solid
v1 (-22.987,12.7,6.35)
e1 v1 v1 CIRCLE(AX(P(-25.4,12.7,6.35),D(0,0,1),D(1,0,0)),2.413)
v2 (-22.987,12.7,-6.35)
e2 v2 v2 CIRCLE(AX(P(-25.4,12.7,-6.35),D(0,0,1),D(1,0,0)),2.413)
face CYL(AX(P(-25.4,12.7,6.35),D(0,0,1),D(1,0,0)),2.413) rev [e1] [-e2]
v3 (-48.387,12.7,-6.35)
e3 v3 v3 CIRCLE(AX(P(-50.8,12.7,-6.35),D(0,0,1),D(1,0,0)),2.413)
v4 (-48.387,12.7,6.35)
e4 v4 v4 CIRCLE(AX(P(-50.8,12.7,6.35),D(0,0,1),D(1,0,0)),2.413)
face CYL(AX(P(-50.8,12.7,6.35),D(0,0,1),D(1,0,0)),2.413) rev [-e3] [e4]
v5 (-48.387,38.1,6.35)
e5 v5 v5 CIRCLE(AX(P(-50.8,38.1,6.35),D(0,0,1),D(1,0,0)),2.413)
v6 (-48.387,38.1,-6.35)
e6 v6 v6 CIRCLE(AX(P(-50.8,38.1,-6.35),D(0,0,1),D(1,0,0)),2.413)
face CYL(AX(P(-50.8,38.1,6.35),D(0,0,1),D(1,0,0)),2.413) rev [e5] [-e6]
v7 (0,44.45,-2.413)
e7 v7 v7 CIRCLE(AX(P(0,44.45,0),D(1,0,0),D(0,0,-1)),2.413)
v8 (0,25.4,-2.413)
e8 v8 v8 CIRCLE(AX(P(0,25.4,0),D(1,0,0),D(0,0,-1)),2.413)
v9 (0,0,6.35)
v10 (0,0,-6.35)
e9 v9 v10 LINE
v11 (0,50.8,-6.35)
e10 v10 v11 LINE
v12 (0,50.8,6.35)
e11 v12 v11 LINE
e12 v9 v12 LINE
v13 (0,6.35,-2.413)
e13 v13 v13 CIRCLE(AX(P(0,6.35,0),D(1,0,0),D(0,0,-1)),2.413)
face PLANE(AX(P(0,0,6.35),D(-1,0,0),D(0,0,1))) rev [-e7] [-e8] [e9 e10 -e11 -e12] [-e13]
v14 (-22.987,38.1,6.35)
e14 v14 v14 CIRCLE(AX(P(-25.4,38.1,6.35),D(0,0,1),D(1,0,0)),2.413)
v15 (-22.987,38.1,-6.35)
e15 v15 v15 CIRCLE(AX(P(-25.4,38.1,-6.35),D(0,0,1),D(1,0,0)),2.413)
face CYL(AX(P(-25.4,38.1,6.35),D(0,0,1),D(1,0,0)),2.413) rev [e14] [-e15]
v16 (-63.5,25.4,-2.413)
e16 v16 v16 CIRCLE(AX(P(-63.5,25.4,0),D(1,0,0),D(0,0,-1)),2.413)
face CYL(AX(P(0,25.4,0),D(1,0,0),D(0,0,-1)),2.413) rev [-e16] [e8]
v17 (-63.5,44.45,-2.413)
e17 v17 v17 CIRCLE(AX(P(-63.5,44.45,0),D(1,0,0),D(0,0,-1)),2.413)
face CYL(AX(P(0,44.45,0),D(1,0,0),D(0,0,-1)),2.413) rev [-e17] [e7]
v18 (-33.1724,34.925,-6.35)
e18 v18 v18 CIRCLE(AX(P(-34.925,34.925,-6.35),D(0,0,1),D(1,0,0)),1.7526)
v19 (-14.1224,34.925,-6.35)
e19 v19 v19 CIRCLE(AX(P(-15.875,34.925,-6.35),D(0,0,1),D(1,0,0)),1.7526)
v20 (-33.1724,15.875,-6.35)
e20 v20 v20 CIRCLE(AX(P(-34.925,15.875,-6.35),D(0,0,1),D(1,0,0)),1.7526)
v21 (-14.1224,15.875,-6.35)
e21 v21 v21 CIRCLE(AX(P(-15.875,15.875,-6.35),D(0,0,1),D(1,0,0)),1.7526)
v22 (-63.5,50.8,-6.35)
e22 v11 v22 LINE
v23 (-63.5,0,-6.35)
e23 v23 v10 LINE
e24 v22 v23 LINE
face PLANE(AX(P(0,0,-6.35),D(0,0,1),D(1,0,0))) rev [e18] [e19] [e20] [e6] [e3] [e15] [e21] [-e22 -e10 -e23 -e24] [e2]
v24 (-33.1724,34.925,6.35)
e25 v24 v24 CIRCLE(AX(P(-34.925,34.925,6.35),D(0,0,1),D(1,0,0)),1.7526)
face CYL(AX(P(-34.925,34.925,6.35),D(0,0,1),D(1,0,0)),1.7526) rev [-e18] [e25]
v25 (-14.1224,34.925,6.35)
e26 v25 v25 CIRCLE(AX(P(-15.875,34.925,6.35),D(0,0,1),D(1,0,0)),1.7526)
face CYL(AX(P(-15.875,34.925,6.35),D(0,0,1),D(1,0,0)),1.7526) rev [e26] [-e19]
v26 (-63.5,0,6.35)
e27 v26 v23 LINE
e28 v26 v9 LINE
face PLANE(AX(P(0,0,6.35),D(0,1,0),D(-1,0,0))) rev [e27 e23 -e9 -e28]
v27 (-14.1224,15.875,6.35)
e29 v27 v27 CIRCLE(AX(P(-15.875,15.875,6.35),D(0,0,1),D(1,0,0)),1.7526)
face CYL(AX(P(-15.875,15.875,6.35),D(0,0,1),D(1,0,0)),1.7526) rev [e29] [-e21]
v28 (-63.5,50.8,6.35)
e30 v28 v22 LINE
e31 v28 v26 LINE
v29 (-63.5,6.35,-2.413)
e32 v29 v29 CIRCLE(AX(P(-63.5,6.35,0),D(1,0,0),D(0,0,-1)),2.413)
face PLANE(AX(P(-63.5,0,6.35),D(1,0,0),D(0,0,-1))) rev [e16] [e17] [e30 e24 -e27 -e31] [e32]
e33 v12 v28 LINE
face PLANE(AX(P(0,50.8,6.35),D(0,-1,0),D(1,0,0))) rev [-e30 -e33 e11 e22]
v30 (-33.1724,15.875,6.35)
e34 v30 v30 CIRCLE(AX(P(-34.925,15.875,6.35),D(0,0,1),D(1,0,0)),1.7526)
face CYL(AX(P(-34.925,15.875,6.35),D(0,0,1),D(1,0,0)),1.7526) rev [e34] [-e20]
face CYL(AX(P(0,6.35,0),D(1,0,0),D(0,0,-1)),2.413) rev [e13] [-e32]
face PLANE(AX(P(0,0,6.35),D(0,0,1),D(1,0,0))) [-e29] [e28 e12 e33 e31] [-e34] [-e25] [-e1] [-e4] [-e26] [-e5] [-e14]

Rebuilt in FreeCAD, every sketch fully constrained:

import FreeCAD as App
import Part
import Sketcher
from FreeCAD import Vector
Q = App.Units.Quantity


def add_polygon(sketch, points):
    """Adds a closed chain of lines whose ends are joined by coincident constraints."""
    first, n = sketch.GeometryCount, len(points)
    for a, b in zip(points, points[1:] + points[:1]):
        sketch.addGeometry(Part.LineSegment(App.Vector(*a, 0), App.Vector(*b, 0)), False)
    for i in range(n):
        sketch.addConstraint(Sketcher.Constraint("Coincident", first + i, 2, first + (i + 1) % n, 1))

doc = App.newDocument("Part")
body = doc.addObject("PartDesign::Body", "Body")

sketch1 = body.newObject("Sketcher::SketchObject", "Sketch")
sketch1.AttachmentSupport = (doc.getObject("XY_Plane"), [""])
sketch1.MapMode = "FlatFace"
add_polygon(sketch1, [(-64, 51), (-64, 0), (0, 0), (0, 51)])
sketch1.addConstraint([
    Sketcher.Constraint("Vertical", 0),
    Sketcher.Constraint("Horizontal", 1),
    Sketcher.Constraint("Vertical", 2),
    Sketcher.Constraint("Horizontal", 3),
    Sketcher.Constraint("Coincident", 1, 2, -1, 1),
    Sketcher.Constraint("DistanceY", 0, 2, 0, 1, Q("2 in")),
    Sketcher.Constraint("DistanceX", 1, 1, 1, 2, Q("2.5 in")),
])
pad1 = body.newObject("PartDesign::Pad", "Pad")
pad1.Profile = sketch1
pad1.Length = Q("0.5 in")
pad1.Midplane = True

sketch2 = body.newObject("Sketcher::SketchObject", "Sketch001")
sketch2.AttachmentSupport = (doc.getObject("YZ_Plane"), [""])
sketch2.MapMode = "FlatFace"
sketch2.addGeometry([
    Part.Circle(Vector(44.5, 0, 0), Vector(0, 0, 1), 2.4),
    Part.Circle(Vector(25.4, 0, 0), Vector(0, 0, 1), 2.4),
    Part.Circle(Vector(6.3, 0, 0), Vector(0, 0, 1), 2.4),
], False)
sketch2.addConstraint([
    Sketcher.Constraint("Equal", 0, 1),
    Sketcher.Constraint("Equal", 1, 2),
    Sketcher.Constraint("PointOnObject", 0, 3, -1),
    Sketcher.Constraint("PointOnObject", 1, 3, -1),
    Sketcher.Constraint("PointOnObject", 2, 3, -1),
    Sketcher.Constraint("Diameter", 0, Q("0.19 in")),
    Sketcher.Constraint("DistanceX", -1, 1, 1, 3, Q("1 in")),
    Sketcher.Constraint("DistanceX", 2, 3, 0, 3, Q("1.5 in")),
    Sketcher.Constraint("DistanceX", -1, 1, 0, 3, Q("1.75 in")),
])
doc.recompute()
hole = body.newObject("PartDesign::Hole", "Hole")
hole.Profile = sketch2
hole.ThreadType = "None"
hole.Diameter = Q("0.19 in")
hole.DepthType = "ThroughAll"

sketch3 = body.newObject("Sketcher::SketchObject", "Sketch002")
sketch3.AttachmentSupport = (doc.getObject("XY_Plane"), [""])
sketch3.MapMode = "FlatFace"
sketch3.AttachmentOffset = App.Placement(Vector(0, 0, 0.25 * 25.4), App.Rotation())
sketch3.addGeometry([
    Part.Circle(Vector(-50.8, 38.1, 0), Vector(0, 0, 1), 2.4),
    Part.Circle(Vector(-25.4, 38.1, 0), Vector(0, 0, 1), 2.4),
    Part.Circle(Vector(-50.8, 12.7, 0), Vector(0, 0, 1), 2.4),
    Part.Circle(Vector(-25.4, 12.7, 0), Vector(0, 0, 1), 2.4),
], False)
sketch3.addConstraint([
    Sketcher.Constraint("Equal", 0, 1),
    Sketcher.Constraint("Equal", 1, 2),
    Sketcher.Constraint("Equal", 2, 3),
    Sketcher.Constraint("Horizontal", 0, 3, 1, 3),
    Sketcher.Constraint("Horizontal", 2, 3, 3, 3),
    Sketcher.Constraint("Vertical", 0, 3, 2, 3),
    Sketcher.Constraint("Vertical", 1, 3, 3, 3),
    Sketcher.Constraint("Diameter", 0, Q("0.19 in")),
    Sketcher.Constraint("DistanceX", 0, 3, -1, 1, Q("2 in")),
    Sketcher.Constraint("DistanceX", 1, 3, -1, 1, Q("1 in")),
    Sketcher.Constraint("DistanceY", 2, 3, 0, 3, Q("1 in")),
    Sketcher.Constraint("DistanceY", -1, 1, 0, 3, Q("1.5 in")),
])
doc.recompute()
hole2 = body.newObject("PartDesign::Hole", "Hole001")
hole2.Profile = sketch3
hole2.ThreadType = "None"
hole2.Diameter = Q("0.19 in")
hole2.DepthType = "ThroughAll"

sketch4 = body.newObject("Sketcher::SketchObject", "Sketch003")
sketch4.AttachmentSupport = (doc.getObject("XY_Plane"), [""])
sketch4.MapMode = "FlatFace"
sketch4.AttachmentOffset = App.Placement(Vector(0, 0, 0.25 * 25.4), App.Rotation())
sketch4.addGeometry([
    Part.Circle(Vector(-34.9, 34.9, 0), Vector(0, 0, 1), 1.8),
    Part.Circle(Vector(-15.9, 34.9, 0), Vector(0, 0, 1), 1.8),
    Part.Circle(Vector(-15.9, 15.9, 0), Vector(0, 0, 1), 1.8),
    Part.Circle(Vector(-34.9, 15.9, 0), Vector(0, 0, 1), 1.8),
], False)
sketch4.addConstraint([
    Sketcher.Constraint("Equal", 0, 1),
    Sketcher.Constraint("Equal", 1, 2),
    Sketcher.Constraint("Equal", 2, 3),
    Sketcher.Constraint("Horizontal", 0, 3, 1, 3),
    Sketcher.Constraint("Horizontal", 2, 3, 3, 3),
    Sketcher.Constraint("Vertical", 1, 3, 2, 3),
    Sketcher.Constraint("Vertical", 0, 3, 3, 3),
    Sketcher.Constraint("Diameter", 0, Q("0.138 in")),
    Sketcher.Constraint("DistanceX", 0, 3, 1, 3, Q("0.75 in")),
    Sketcher.Constraint("DistanceY", 2, 3, 1, 3, Q("0.75 in")),
    Sketcher.Constraint("DistanceX", 0, 3, -1, 1, Q("1.375 in")),
    Sketcher.Constraint("DistanceY", -1, 1, 0, 3, Q("1.375 in")),
])
doc.recompute()
hole3 = body.newObject("PartDesign::Hole", "Hole002")
hole3.Profile = sketch4
hole3.ThreadType = "None"
hole3.Diameter = Q("0.138 in")
hole3.DepthType = "ThroughAll"

doc.recompute()
